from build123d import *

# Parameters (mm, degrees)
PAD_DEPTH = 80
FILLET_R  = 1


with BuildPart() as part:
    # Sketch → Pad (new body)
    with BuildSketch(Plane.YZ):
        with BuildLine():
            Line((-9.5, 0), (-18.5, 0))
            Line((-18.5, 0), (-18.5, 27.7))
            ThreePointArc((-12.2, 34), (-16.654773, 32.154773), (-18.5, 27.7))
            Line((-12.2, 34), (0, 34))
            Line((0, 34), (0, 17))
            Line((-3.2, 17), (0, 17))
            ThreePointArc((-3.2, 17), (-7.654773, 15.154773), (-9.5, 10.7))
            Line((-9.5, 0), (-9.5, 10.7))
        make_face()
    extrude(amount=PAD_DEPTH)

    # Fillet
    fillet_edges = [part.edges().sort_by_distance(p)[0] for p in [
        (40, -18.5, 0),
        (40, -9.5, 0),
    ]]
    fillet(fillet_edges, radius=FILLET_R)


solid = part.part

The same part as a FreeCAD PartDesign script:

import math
import FreeCAD as App
import Part
import Sketcher
Q = App.Units.Quantity


def edges_at(feature, points):
    """Names of the edges that pass closest to the given points."""
    edges = feature.Shape.Edges
    near = lambda p: min(range(len(edges)), key=lambda i: edges[i].distToShape(Part.Vertex(*p))[0])
    return sorted({f"Edge{near(p) + 1}" for p in points})

doc = App.newDocument("Part")
body = doc.addObject("PartDesign::Body", "Body")

# Sketch on YZ plane
sketch1 = doc.addObject("Sketcher::SketchObject", "Sketch")
body.addObject(sketch1)
sketch1.AttachmentSupport = (doc.YZ_Plane, [""])
sketch1.MapMode = "FlatFace"
sketch1.addGeometry(Part.LineSegment(App.Vector(-18.5, 0, 0), App.Vector(-9.5, 0, 0)), False)
sketch1.addGeometry(Part.LineSegment(App.Vector(-9.5, 0, 0), App.Vector(-9.5, 10.7, 0)), False)
sketch1.addGeometry(Part.ArcOfCircle(Part.Circle(App.Vector(-3.2, 10.7, 0), App.Vector(0, 0, 1), 6.3), math.radians(90), math.radians(180)), False)
sketch1.addGeometry(Part.LineSegment(App.Vector(-3.2, 17, 0), App.Vector(0, 17, 0)), False)
sketch1.addGeometry(Part.LineSegment(App.Vector(0, 17, 0), App.Vector(0, 34, 0)), False)
sketch1.addGeometry(Part.LineSegment(App.Vector(0, 34, 0), App.Vector(-12.2, 34, 0)), False)
sketch1.addGeometry(Part.ArcOfCircle(Part.Circle(App.Vector(-12.2, 27.7, 0), App.Vector(0, 0, 1), 6.3), math.radians(90), math.radians(180)), False)
sketch1.addGeometry(Part.LineSegment(App.Vector(-18.5, 27.7, 0), App.Vector(-18.5, 0, 0)), False)
sketch1.addConstraint(Sketcher.Constraint("Coincident", 0, 2, 1, 1))
sketch1.addConstraint(Sketcher.Constraint("Tangent", 1, 2, 2, 2))
sketch1.addConstraint(Sketcher.Constraint("Tangent", 2, 1, 3, 1))
sketch1.addConstraint(Sketcher.Constraint("Coincident", 3, 2, 4, 1))
sketch1.addConstraint(Sketcher.Constraint("Coincident", 4, 2, 5, 1))
sketch1.addConstraint(Sketcher.Constraint("Tangent", 5, 2, 6, 1))
sketch1.addConstraint(Sketcher.Constraint("Tangent", 6, 2, 7, 1))
sketch1.addConstraint(Sketcher.Constraint("Coincident", 7, 2, 0, 1))
sketch1.addConstraint(Sketcher.Constraint("Horizontal", 0))
sketch1.addConstraint(Sketcher.Constraint("Vertical", 1))
sketch1.addConstraint(Sketcher.Constraint("Horizontal", 3))
sketch1.addConstraint(Sketcher.Constraint("Vertical", 4))
sketch1.addConstraint(Sketcher.Constraint("Horizontal", 5))
sketch1.addConstraint(Sketcher.Constraint("Vertical", 7))
sketch1.addConstraint(Sketcher.Constraint("Equal", 2, 6))
sketch1.addConstraint(Sketcher.Constraint("PointOnObject", 0, 2, -1))
sketch1.addConstraint(Sketcher.Constraint("PointOnObject", 3, 2, -2))
sketch1.addConstraint(Sketcher.Constraint("Radius", 2, Q("6.299999 mm")))
sketch1.addConstraint(Sketcher.Constraint("DistanceX", 0, 1, 0, 2, Q("9 mm")))
sketch1.addConstraint(Sketcher.Constraint("DistanceY", 4, 1, 4, 2, Q("17 mm")))
sketch1.addConstraint(Sketcher.Constraint("DistanceX", 3, 1, 3, 2, Q("3.2 mm")))
sketch1.addConstraint(Sketcher.Constraint("DistanceY", 1, 1, 1, 2, Q("10.7 mm")))
pad1 = doc.addObject("PartDesign::Pad", "Pad")
body.addObject(pad1)
pad1.Profile = sketch1
pad1.Length = 80
doc.recompute()

fillet = doc.addObject("PartDesign::Fillet", "Fillet")
body.addObject(fillet)
fillet.Base = (pad1, edges_at(pad1, [(40, -18.5, 0), (40, -9.5, 0)]))
fillet.Radius = 1

doc.recompute()
